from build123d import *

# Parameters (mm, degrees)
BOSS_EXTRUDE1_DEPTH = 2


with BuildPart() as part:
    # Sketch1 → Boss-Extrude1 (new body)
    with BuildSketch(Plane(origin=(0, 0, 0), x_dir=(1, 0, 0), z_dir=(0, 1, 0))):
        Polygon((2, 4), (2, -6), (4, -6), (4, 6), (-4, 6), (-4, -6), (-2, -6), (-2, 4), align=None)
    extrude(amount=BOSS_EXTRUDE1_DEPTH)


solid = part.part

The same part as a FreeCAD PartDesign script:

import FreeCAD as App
import Part
import Sketcher
from FreeCAD import Vector
Q = App.Units.Quantity


def add_polygon(sketch, points):
    """Adds a closed chain of lines whose ends are joined by coincident constraints."""
    first, n = sketch.GeometryCount, len(points)
    for a, b in zip(points, points[1:] + points[:1]):
        sketch.addGeometry(Part.LineSegment(App.Vector(*a, 0), App.Vector(*b, 0)), False)
    for i in range(n):
        sketch.addConstraint(Sketcher.Constraint("Coincident", first + i, 2, first + (i + 1) % n, 1))

doc = App.newDocument("Part")
body = doc.addObject("PartDesign::Body", "Body")

# Sketch on XZ plane
sketch1 = body.newObject("Sketcher::SketchObject", "Sketch")
sketch1.AttachmentSupport = (doc.getObject("XZ_Plane"), [""])
sketch1.MapMode = "FlatFace"
add_polygon(sketch1, [(2, -4), (2, 6), (4, 6), (4, -6), (-4, -6), (-4, 6), (-2, 6), (-2, -4)])  # lines 0-7
sketch1.addConstraint(Sketcher.Constraint("Vertical", 0))
sketch1.addConstraint(Sketcher.Constraint("Horizontal", 1))
sketch1.addConstraint(Sketcher.Constraint("Vertical", 2))
sketch1.addConstraint(Sketcher.Constraint("Horizontal", 3))
sketch1.addConstraint(Sketcher.Constraint("Vertical", 4))
sketch1.addConstraint(Sketcher.Constraint("Horizontal", 5))
sketch1.addConstraint(Sketcher.Constraint("Vertical", 6))
sketch1.addConstraint(Sketcher.Constraint("Horizontal", 7))
sketch1.addConstraint(Sketcher.Constraint("Symmetric", 1, 2, 3, 2, -1, 1))
sketch1.addConstraint(Sketcher.Constraint("Symmetric", 0, 2, 5, 2, -2))
sketch1.addConstraint(Sketcher.Constraint("DistanceX", 1, 1, 1, 2, Q("2 mm")))
sketch1.addConstraint(Sketcher.Constraint("DistanceX", 3, 2, 3, 1, Q("8 mm")))
sketch1.addConstraint(Sketcher.Constraint("DistanceY", 0, 1, 0, 2, Q("10 mm")))
sketch1.addConstraint(Sketcher.Constraint("DistanceY", 2, 2, 2, 1, Q("12 mm")))
pad1 = body.newObject("PartDesign::Pad", "Pad")
pad1.Profile = sketch1
pad1.Length = 2
pad1.Reversed = True

doc.recompute()
